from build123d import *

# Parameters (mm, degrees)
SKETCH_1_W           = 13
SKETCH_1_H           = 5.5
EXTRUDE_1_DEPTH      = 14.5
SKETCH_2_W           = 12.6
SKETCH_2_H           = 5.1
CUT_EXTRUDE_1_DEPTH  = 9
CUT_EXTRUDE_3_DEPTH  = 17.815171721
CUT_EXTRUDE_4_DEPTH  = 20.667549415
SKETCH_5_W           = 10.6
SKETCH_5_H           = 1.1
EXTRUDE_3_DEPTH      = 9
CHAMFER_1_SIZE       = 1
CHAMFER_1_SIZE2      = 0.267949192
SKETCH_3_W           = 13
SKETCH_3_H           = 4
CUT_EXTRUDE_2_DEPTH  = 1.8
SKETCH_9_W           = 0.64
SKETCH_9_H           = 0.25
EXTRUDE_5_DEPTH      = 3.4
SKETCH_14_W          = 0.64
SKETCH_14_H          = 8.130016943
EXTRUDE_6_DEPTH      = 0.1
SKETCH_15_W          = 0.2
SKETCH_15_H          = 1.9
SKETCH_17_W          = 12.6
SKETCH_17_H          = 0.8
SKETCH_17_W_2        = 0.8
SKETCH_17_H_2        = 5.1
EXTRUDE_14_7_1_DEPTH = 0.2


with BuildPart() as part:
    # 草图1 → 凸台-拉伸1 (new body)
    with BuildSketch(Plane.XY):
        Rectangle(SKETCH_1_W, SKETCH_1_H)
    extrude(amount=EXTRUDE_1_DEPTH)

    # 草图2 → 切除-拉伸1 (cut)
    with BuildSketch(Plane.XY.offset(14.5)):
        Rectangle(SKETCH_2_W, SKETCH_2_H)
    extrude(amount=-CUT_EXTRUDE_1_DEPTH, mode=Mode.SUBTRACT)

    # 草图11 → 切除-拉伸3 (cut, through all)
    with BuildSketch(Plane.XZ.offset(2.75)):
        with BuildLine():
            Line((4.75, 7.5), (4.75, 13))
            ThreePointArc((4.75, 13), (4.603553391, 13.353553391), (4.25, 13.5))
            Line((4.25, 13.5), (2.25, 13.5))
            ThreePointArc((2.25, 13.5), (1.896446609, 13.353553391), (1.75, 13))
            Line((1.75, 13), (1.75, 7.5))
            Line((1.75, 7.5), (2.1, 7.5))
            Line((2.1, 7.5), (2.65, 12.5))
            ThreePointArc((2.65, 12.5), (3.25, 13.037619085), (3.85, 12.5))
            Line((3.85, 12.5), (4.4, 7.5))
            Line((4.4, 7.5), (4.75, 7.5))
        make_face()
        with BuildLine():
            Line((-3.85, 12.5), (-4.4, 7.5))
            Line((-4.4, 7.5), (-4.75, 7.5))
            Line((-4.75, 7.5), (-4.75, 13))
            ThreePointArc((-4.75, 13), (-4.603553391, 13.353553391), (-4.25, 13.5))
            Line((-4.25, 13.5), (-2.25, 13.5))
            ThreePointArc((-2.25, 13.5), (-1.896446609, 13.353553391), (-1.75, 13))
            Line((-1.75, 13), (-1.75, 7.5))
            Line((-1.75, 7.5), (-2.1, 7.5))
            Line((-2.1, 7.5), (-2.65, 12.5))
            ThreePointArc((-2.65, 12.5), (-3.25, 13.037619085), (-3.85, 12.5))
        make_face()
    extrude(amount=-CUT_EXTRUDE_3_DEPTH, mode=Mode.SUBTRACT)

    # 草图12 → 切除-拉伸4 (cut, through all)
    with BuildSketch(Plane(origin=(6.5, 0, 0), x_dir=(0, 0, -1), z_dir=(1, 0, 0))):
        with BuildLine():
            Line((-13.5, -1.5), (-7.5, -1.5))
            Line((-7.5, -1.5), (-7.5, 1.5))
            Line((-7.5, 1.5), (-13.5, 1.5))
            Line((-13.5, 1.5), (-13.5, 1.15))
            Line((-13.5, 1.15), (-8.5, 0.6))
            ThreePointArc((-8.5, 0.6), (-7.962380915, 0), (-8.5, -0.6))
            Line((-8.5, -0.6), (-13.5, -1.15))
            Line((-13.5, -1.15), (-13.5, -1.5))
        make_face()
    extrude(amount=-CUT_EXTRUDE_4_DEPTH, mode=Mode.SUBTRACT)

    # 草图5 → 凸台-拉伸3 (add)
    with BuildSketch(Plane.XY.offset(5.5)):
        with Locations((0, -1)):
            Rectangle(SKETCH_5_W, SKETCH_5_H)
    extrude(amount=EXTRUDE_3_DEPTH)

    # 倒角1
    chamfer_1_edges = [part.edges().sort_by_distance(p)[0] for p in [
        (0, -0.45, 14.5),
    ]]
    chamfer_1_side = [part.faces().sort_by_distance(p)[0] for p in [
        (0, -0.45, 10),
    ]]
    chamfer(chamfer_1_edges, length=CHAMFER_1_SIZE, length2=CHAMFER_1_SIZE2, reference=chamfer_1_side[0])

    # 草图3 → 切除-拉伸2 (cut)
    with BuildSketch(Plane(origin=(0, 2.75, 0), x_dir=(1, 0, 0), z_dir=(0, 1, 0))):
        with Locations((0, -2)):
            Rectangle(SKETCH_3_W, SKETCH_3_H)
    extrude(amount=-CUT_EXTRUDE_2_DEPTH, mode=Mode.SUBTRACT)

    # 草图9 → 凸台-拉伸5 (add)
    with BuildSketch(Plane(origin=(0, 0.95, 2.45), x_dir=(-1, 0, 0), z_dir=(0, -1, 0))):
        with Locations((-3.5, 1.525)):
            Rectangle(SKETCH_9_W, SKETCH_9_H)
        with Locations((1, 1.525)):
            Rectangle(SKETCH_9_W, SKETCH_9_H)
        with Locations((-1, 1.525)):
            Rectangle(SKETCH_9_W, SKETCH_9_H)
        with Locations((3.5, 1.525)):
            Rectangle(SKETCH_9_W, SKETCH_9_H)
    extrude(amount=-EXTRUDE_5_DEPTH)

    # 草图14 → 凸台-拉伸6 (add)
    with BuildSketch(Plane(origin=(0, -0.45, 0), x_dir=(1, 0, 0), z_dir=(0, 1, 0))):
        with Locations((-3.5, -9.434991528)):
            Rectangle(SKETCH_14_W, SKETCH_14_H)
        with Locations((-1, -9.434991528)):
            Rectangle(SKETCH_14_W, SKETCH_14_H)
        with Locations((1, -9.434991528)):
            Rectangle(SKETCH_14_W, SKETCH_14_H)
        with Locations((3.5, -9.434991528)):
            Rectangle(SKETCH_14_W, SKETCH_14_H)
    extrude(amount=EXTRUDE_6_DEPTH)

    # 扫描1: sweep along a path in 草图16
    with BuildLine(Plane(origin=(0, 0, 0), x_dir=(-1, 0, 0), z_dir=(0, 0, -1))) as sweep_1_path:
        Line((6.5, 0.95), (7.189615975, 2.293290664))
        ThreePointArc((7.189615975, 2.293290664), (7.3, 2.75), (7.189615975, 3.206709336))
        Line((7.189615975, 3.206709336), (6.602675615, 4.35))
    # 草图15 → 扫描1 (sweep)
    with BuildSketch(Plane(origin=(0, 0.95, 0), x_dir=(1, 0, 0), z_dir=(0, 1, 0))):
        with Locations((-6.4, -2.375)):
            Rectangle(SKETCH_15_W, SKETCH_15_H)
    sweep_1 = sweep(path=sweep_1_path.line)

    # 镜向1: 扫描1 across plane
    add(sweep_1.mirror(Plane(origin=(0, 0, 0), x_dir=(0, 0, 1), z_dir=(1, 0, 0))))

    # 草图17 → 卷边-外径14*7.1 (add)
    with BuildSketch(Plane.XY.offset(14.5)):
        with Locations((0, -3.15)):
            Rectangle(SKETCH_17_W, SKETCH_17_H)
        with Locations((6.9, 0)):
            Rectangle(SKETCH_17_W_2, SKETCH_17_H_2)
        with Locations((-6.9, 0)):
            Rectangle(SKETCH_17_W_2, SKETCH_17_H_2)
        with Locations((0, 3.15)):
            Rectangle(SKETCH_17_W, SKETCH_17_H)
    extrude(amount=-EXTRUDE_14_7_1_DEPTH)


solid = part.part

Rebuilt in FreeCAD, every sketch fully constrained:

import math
import FreeCAD as App
import Part
import Sketcher

V = App.Vector
Q = App.Units.Quantity


def edges_at(feature, points):
    """Names of the edges that pass closest to the given points."""
    edges = feature.Shape.Edges
    near = lambda p: min(range(len(edges)), key=lambda i: edges[i].distToShape(Part.Vertex(*p))[0])
    return sorted({f"Edge{near(p) + 1}" for p in points})

doc = App.newDocument("Part")
body = doc.addObject("PartDesign::Body", "Body")

# Sketch on XY plane
sketch1 = body.newObject("Sketcher::SketchObject", "Sketch")
sketch1.AttachmentSupport = (doc.getObject("XY_Plane"), [""])
sketch1.MapMode = "FlatFace"
sketch1.addGeometry(Part.LineSegment(V(-6, 3, 0), V(-6, -3, 0)), False)
sketch1.addGeometry(Part.LineSegment(V(-6, -3, 0), V(6, -3, 0)), False)
sketch1.addGeometry(Part.LineSegment(V(6, -3, 0), V(6, 3, 0)), False)
sketch1.addGeometry(Part.LineSegment(V(6, 3, 0), V(-6, 3, 0)), False)
sketch1.addConstraint(Sketcher.Constraint("Coincident", 0, 2, 1, 1))
sketch1.addConstraint(Sketcher.Constraint("Coincident", 1, 2, 2, 1))
sketch1.addConstraint(Sketcher.Constraint("Coincident", 2, 2, 3, 1))
sketch1.addConstraint(Sketcher.Constraint("Coincident", 3, 2, 0, 1))
sketch1.addConstraint(Sketcher.Constraint("Vertical", 0))
sketch1.addConstraint(Sketcher.Constraint("Horizontal", 1))
sketch1.addConstraint(Sketcher.Constraint("Vertical", 2))
sketch1.addConstraint(Sketcher.Constraint("Horizontal", 3))
sketch1.addConstraint(Sketcher.Constraint("Symmetric", 0, 2, 2, 2, -1, 1))
sketch1.addConstraint(Sketcher.Constraint("DistanceX", 1, 1, 1, 2, Q("13 mm")))
sketch1.addConstraint(Sketcher.Constraint("DistanceY", 0, 2, 0, 1, Q("5.5 mm")))
pad1 = body.newObject("PartDesign::Pad", "Pad")
pad1.Profile = sketch1
pad1.Length = 14.5

# Sketch on XY plane
sketch2 = body.newObject("Sketcher::SketchObject", "Sketch001")
sketch2.AttachmentSupport = (doc.getObject("XY_Plane"), [""])
sketch2.MapMode = "FlatFace"
sketch2.AttachmentOffset = App.Placement(V(0, 0, 14.5), App.Rotation())
sketch2.addGeometry(Part.LineSegment(V(-6, 3, 0), V(-6, -3, 0)), False)
sketch2.addGeometry(Part.LineSegment(V(-6, -3, 0), V(6, -3, 0)), False)
sketch2.addGeometry(Part.LineSegment(V(6, -3, 0), V(6, 3, 0)), False)
sketch2.addGeometry(Part.LineSegment(V(6, 3, 0), V(-6, 3, 0)), False)
sketch2.addConstraint(Sketcher.Constraint("Coincident", 0, 2, 1, 1))
sketch2.addConstraint(Sketcher.Constraint("Coincident", 1, 2, 2, 1))
sketch2.addConstraint(Sketcher.Constraint("Coincident", 2, 2, 3, 1))
sketch2.addConstraint(Sketcher.Constraint("Coincident", 3, 2, 0, 1))
sketch2.addConstraint(Sketcher.Constraint("Vertical", 0))
sketch2.addConstraint(Sketcher.Constraint("Horizontal", 1))
sketch2.addConstraint(Sketcher.Constraint("Vertical", 2))
sketch2.addConstraint(Sketcher.Constraint("Horizontal", 3))
sketch2.addConstraint(Sketcher.Constraint("Symmetric", 0, 2, 2, 2, -1, 1))
sketch2.addConstraint(Sketcher.Constraint("DistanceX", 1, 1, 1, 2, Q("12.6 mm")))
sketch2.addConstraint(Sketcher.Constraint("DistanceY", 0, 2, 0, 1, Q("5.1 mm")))
pocket1 = body.newObject("PartDesign::Pocket", "Pocket")
pocket1.Profile = sketch2
pocket1.Length = 9

# Sketch on XZ plane
sketch3 = body.newObject("Sketcher::SketchObject", "Sketch002")
sketch3.AttachmentSupport = (doc.getObject("XZ_Plane"), [""])
sketch3.MapMode = "FlatFace"
sketch3.AttachmentOffset = App.Placement(V(0, 0, 2.75), App.Rotation())
sketch3.addGeometry(Part.LineSegment(V(4.75, 7.5, 0), V(4.75, 13, 0)), False)
sketch3.addGeometry(Part.ArcOfCircle(Part.Circle(V(4.25, 13, 0), V(0, 0, 1), 0.5), math.radians(0), math.radians(90)), False)
sketch3.addGeometry(Part.LineSegment(V(4.25, 13.5, 0), V(2.25, 13.5, 0)), False)
sketch3.addGeometry(Part.ArcOfCircle(Part.Circle(V(2.25, 13, 0), V(0, 0, 1), 0.5), math.radians(90), math.radians(180)), False)
sketch3.addGeometry(Part.LineSegment(V(1.75, 13, 0), V(1.75, 7.5, 0)), False)
sketch3.addGeometry(Part.LineSegment(V(1.75, 7.5, 0), V(2.1, 7.5, 0)), False)
sketch3.addGeometry(Part.LineSegment(V(2.1, 7.5, 0), V(2.65, 12.5, 0)), False)
sketch3.addGeometry(Part.ArcOfCircle(Part.Circle(V(3.25, 12.43, 0), V(0, 0, 1), 0.6), math.radians(6), math.radians(174)), False)
sketch3.addGeometry(Part.LineSegment(V(3.85, 12.5, 0), V(4.4, 7.5, 0)), False)
sketch3.addGeometry(Part.LineSegment(V(4.4, 7.5, 0), V(4.75, 7.5, 0)), False)
sketch3.addGeometry(Part.LineSegment(V(-4.4, 7.5, 0), V(-3.85, 12.5, 0)), False)
sketch3.addGeometry(Part.ArcOfCircle(Part.Circle(V(-3.25, 12.43, 0), V(0, 0, 1), 0.6), math.radians(6), math.radians(174)), False)
sketch3.addGeometry(Part.LineSegment(V(-2.65, 12.5, 0), V(-2.1, 7.5, 0)), False)
sketch3.addGeometry(Part.LineSegment(V(-2.1, 7.5, 0), V(-1.75, 7.5, 0)), False)
sketch3.addGeometry(Part.LineSegment(V(-1.75, 7.5, 0), V(-1.75, 13, 0)), False)
sketch3.addGeometry(Part.ArcOfCircle(Part.Circle(V(-2.25, 13, 0), V(0, 0, 1), 0.5), math.radians(0), math.radians(90)), False)
sketch3.addGeometry(Part.LineSegment(V(-2.25, 13.5, 0), V(-4.25, 13.5, 0)), False)
sketch3.addGeometry(Part.ArcOfCircle(Part.Circle(V(-4.25, 13, 0), V(0, 0, 1), 0.5), math.radians(90), math.radians(180)), False)
sketch3.addGeometry(Part.LineSegment(V(-4.75, 13, 0), V(-4.75, 7.5, 0)), False)
sketch3.addGeometry(Part.LineSegment(V(-4.75, 7.5, 0), V(-4.4, 7.5, 0)), False)
sketch3.addConstraint(Sketcher.Constraint("Tangent", 0, 2, 1, 1))
sketch3.addConstraint(Sketcher.Constraint("Tangent", 1, 2, 2, 1))
sketch3.addConstraint(Sketcher.Constraint("Tangent", 2, 2, 3, 1))
sketch3.addConstraint(Sketcher.Constraint("Tangent", 3, 2, 4, 1))
sketch3.addConstraint(Sketcher.Constraint("Coincident", 4, 2, 5, 1))
sketch3.addConstraint(Sketcher.Constraint("Coincident", 5, 2, 6, 1))
sketch3.addConstraint(Sketcher.Constraint("Tangent", 6, 2, 7, 2))
sketch3.addConstraint(Sketcher.Constraint("Tangent", 7, 1, 8, 1))
sketch3.addConstraint(Sketcher.Constraint("Coincident", 8, 2, 9, 1))
sketch3.addConstraint(Sketcher.Constraint("Coincident", 9, 2, 0, 1))
sketch3.addConstraint(Sketcher.Constraint("Tangent", 10, 2, 11, 2))
sketch3.addConstraint(Sketcher.Constraint("Tangent", 11, 1, 12, 1))
sketch3.addConstraint(Sketcher.Constraint("Coincident", 12, 2, 13, 1))
sketch3.addConstraint(Sketcher.Constraint("Coincident", 13, 2, 14, 1))
sketch3.addConstraint(Sketcher.Constraint("Tangent", 14, 2, 15, 1))
sketch3.addConstraint(Sketcher.Constraint("Tangent", 15, 2, 16, 1))
sketch3.addConstraint(Sketcher.Constraint("Tangent", 16, 2, 17, 1))
sketch3.addConstraint(Sketcher.Constraint("Tangent", 17, 2, 18, 1))
sketch3.addConstraint(Sketcher.Constraint("Coincident", 18, 2, 19, 1))
sketch3.addConstraint(Sketcher.Constraint("Coincident", 19, 2, 10, 1))
sketch3.addConstraint(Sketcher.Constraint("Vertical", 0))
sketch3.addConstraint(Sketcher.Constraint("Horizontal", 2))
sketch3.addConstraint(Sketcher.Constraint("Vertical", 4))
sketch3.addConstraint(Sketcher.Constraint("Horizontal", 5))
sketch3.addConstraint(Sketcher.Constraint("Horizontal", 9))
sketch3.addConstraint(Sketcher.Constraint("Horizontal", 13))
sketch3.addConstraint(Sketcher.Constraint("Vertical", 14))
sketch3.addConstraint(Sketcher.Constraint("Horizontal", 16))
sketch3.addConstraint(Sketcher.Constraint("Vertical", 18))
sketch3.addConstraint(Sketcher.Constraint("Horizontal", 19))
sketch3.addConstraint(Sketcher.Constraint("Equal", 1, 3))
sketch3.addConstraint(Sketcher.Constraint("Equal", 7, 11))
sketch3.addConstraint(Sketcher.Constraint("Equal", 3, 15))
sketch3.addConstraint(Sketcher.Constraint("Equal", 15, 17))
sketch3.addConstraint(Sketcher.Constraint("Symmetric", 7, 3, 11, 3, -2))
sketch3.addConstraint(Sketcher.Constraint("Symmetric", 3, 3, 15, 3, -2))
sketch3.addConstraint(Sketcher.Constraint("Symmetric", 5, 2, 12, 2, -2))
sketch3.addConstraint(Sketcher.Constraint("Symmetric", 9, 2, 18, 2, -2))
sketch3.addConstraint(Sketcher.Constraint("Parallel", 6, 10))
sketch3.addConstraint(Sketcher.Constraint("Parallel", 8, 12))
sketch3.addConstraint(Sketcher.Constraint("Horizontal", 5, 2, 8, 2))
sketch3.addConstraint(Sketcher.Constraint("Equal", 5, 9))
sketch3.addConstraint(Sketcher.Constraint("Radius", 1, Q("0.5 mm")))
sketch3.addConstraint(Sketcher.Constraint("DistanceX", 2, 2, 2, 1, Q("2 mm")))
sketch3.addConstraint(Sketcher.Constraint("DistanceY", 0, 1, 0, 2, Q("5.5 mm")))
sketch3.addConstraint(Sketcher.Constraint("DistanceY", -1, 1, 1, 3, Q("13 mm")))
sketch3.addConstraint(Sketcher.Constraint("DistanceX", 15, 3, 0, 2, Q("7 mm")))
sketch3.addConstraint(Sketcher.Constraint("DistanceY", 6, 2, 2, 2, Q("1 mm")))
sketch3.addConstraint(Sketcher.Constraint("DistanceX", 5, 1, 5, 2, Q("0.35 mm")))
sketch3.addConstraint(Sketcher.Constraint("DistanceX", 6, 2, 7, 3, Q("0.6 mm")))
pocket2 = body.newObject("PartDesign::Pocket", "Pocket001")
pocket2.Profile = sketch3
pocket2.Type = "ThroughAll"

# Sketch on YZ plane
sketch4 = body.newObject("Sketcher::SketchObject", "Sketch003")
sketch4.AttachmentSupport = (doc.getObject("YZ_Plane"), [""])
sketch4.MapMode = "FlatFace"
sketch4.AttachmentOffset = App.Placement(V(0, 0, 6.5), App.Rotation())
sketch4.addGeometry(Part.LineSegment(V(-1.5, 13.5, 0), V(-1.5, 7.5, 0)), False)
sketch4.addGeometry(Part.LineSegment(V(-1.5, 7.5, 0), V(1.5, 7.5, 0)), False)
sketch4.addGeometry(Part.LineSegment(V(1.5, 7.5, 0), V(1.5, 13.5, 0)), False)
sketch4.addGeometry(Part.LineSegment(V(1.5, 13.5, 0), V(1.15, 13.5, 0)), False)
sketch4.addGeometry(Part.LineSegment(V(1.15, 13.5, 0), V(0.6, 8.5, 0)), False)
sketch4.addGeometry(Part.ArcOfCircle(Part.Circle(V(0, 8.57, 0), V(0, 0, 1), 0.6), math.radians(-174), math.radians(-6)), False)
sketch4.addGeometry(Part.LineSegment(V(-0.6, 8.5, 0), V(-1.15, 13.5, 0)), False)
sketch4.addGeometry(Part.LineSegment(V(-1.15, 13.5, 0), V(-1.5, 13.5, 0)), False)
sketch4.addConstraint(Sketcher.Constraint("Coincident", 0, 2, 1, 1))
sketch4.addConstraint(Sketcher.Constraint("Coincident", 1, 2, 2, 1))
sketch4.addConstraint(Sketcher.Constraint("Coincident", 2, 2, 3, 1))
sketch4.addConstraint(Sketcher.Constraint("Coincident", 3, 2, 4, 1))
sketch4.addConstraint(Sketcher.Constraint("Tangent", 4, 2, 5, 2))
sketch4.addConstraint(Sketcher.Constraint("Tangent", 5, 1, 6, 1))
sketch4.addConstraint(Sketcher.Constraint("Coincident", 6, 2, 7, 1))
sketch4.addConstraint(Sketcher.Constraint("Coincident", 7, 2, 0, 1))
sketch4.addConstraint(Sketcher.Constraint("Vertical", 0))
sketch4.addConstraint(Sketcher.Constraint("Horizontal", 1))
sketch4.addConstraint(Sketcher.Constraint("Vertical", 2))
sketch4.addConstraint(Sketcher.Constraint("Horizontal", 3))
sketch4.addConstraint(Sketcher.Constraint("Horizontal", 7))
sketch4.addConstraint(Sketcher.Constraint("Symmetric", 4, 2, 5, 1, -2))
sketch4.addConstraint(Sketcher.Constraint("Symmetric", 2, 2, 7, 2, -2))
sketch4.addConstraint(Sketcher.Constraint("DistanceX", 1, 1, 1, 2, Q("3 mm")))
sketch4.addConstraint(Sketcher.Constraint("DistanceY", 0, 2, 0, 1, Q("6 mm")))
sketch4.addConstraint(Sketcher.Constraint("DistanceY", 1, 2, 4, 2, Q("1 mm")))
sketch4.addConstraint(Sketcher.Constraint("DistanceX", 3, 2, 3, 1, Q("0.35 mm")))
sketch4.addConstraint(Sketcher.Constraint("DistanceY", -1, 1, 0, 2, Q("7.5 mm")))
sketch4.addConstraint(Sketcher.Constraint("DistanceX", -1, 1, 4, 2, Q("0.6 mm")))
pocket3 = body.newObject("PartDesign::Pocket", "Pocket002")
pocket3.Profile = sketch4
pocket3.Type = "ThroughAll"

# Sketch on XY plane
sketch5 = body.newObject("Sketcher::SketchObject", "Sketch004")
sketch5.AttachmentSupport = (doc.getObject("XY_Plane"), [""])
sketch5.MapMode = "FlatFace"
sketch5.AttachmentOffset = App.Placement(V(0, 0, 5.5), App.Rotation())
sketch5.addGeometry(Part.LineSegment(V(-5.3, -0.5, 0), V(-5.3, -1.6, 0)), False)
sketch5.addGeometry(Part.LineSegment(V(-5.3, -1.6, 0), V(5.3, -1.6, 0)), False)
sketch5.addGeometry(Part.LineSegment(V(5.3, -1.6, 0), V(5.3, -0.5, 0)), False)
sketch5.addGeometry(Part.LineSegment(V(5.3, -0.5, 0), V(-5.3, -0.5, 0)), False)
sketch5.addConstraint(Sketcher.Constraint("Coincident", 0, 2, 1, 1))
sketch5.addConstraint(Sketcher.Constraint("Coincident", 1, 2, 2, 1))
sketch5.addConstraint(Sketcher.Constraint("Coincident", 2, 2, 3, 1))
sketch5.addConstraint(Sketcher.Constraint("Coincident", 3, 2, 0, 1))
sketch5.addConstraint(Sketcher.Constraint("Vertical", 0))
sketch5.addConstraint(Sketcher.Constraint("Horizontal", 1))
sketch5.addConstraint(Sketcher.Constraint("Vertical", 2))
sketch5.addConstraint(Sketcher.Constraint("Horizontal", 3))
sketch5.addConstraint(Sketcher.Constraint("DistanceX", 1, 1, 1, 2, Q("10.6 mm")))
sketch5.addConstraint(Sketcher.Constraint("DistanceY", 0, 2, 0, 1, Q("1.1 mm")))
sketch5.addConstraint(Sketcher.Constraint("DistanceX", 0, 2, -1, 1, Q("5.3 mm")))
sketch5.addConstraint(Sketcher.Constraint("DistanceY", 0, 2, -1, 1, Q("1.55 mm")))
pad2 = body.newObject("PartDesign::Pad", "Pad001")
pad2.Profile = sketch5
pad2.Length = 9
doc.recompute()

chamfer = body.newObject("PartDesign::Chamfer", "Chamfer")
chamfer.Base = (pad2, edges_at(pad2, [(0, -0.45, 14.5)]))
chamfer.ChamferType = "Two distances"
chamfer.Size = 1
chamfer.Size2 = 0.267949

# Sketch on XZ plane
sketch6 = body.newObject("Sketcher::SketchObject", "Sketch005")
sketch6.AttachmentSupport = (doc.getObject("XZ_Plane"), [""])
sketch6.MapMode = "FlatFace"
sketch6.AttachmentOffset = App.Placement(V(0, 0, -2.75), App.Rotation())
sketch6.addGeometry(Part.LineSegment(V(-6.5, 0, 0), V(-6.5, 4, 0)), False)
sketch6.addGeometry(Part.LineSegment(V(-6.5, 4, 0), V(6.5, 4, 0)), False)
sketch6.addGeometry(Part.LineSegment(V(6.5, 4, 0), V(6.5, 0, 0)), False)
sketch6.addGeometry(Part.LineSegment(V(6.5, 0, 0), V(-6.5, 0, 0)), False)
sketch6.addConstraint(Sketcher.Constraint("Coincident", 0, 2, 1, 1))
sketch6.addConstraint(Sketcher.Constraint("Coincident", 1, 2, 2, 1))
sketch6.addConstraint(Sketcher.Constraint("Coincident", 2, 2, 3, 1))
sketch6.addConstraint(Sketcher.Constraint("Coincident", 3, 2, 0, 1))
sketch6.addConstraint(Sketcher.Constraint("Vertical", 0))
sketch6.addConstraint(Sketcher.Constraint("Horizontal", 1))
sketch6.addConstraint(Sketcher.Constraint("Vertical", 2))
sketch6.addConstraint(Sketcher.Constraint("Horizontal", 3))
sketch6.addConstraint(Sketcher.Constraint("Symmetric", 2, 2, 3, 2, -1, 1))
sketch6.addConstraint(Sketcher.Constraint("DistanceX", 1, 1, 1, 2, Q("13 mm")))
sketch6.addConstraint(Sketcher.Constraint("DistanceY", 0, 1, 0, 2, Q("4 mm")))
pocket4 = body.newObject("PartDesign::Pocket", "Pocket003")
pocket4.Profile = sketch6
pocket4.Length = 1.8
pocket4.Reversed = True

# Sketch on XZ plane
sketch7 = body.newObject("Sketcher::SketchObject", "Sketch006")
sketch7.AttachmentSupport = (doc.getObject("XZ_Plane"), [""])
sketch7.MapMode = "FlatFace"
sketch7.AttachmentOffset = App.Placement(V(0, 0, -0.95), App.Rotation())
sketch7.addGeometry(Part.LineSegment(V(3.82, 0.8, 0), V(3.82, 1.05, 0)), False)
sketch7.addGeometry(Part.LineSegment(V(3.82, 1.05, 0), V(3.18, 1.05, 0)), False)
sketch7.addGeometry(Part.LineSegment(V(3.18, 1.05, 0), V(3.18, 0.8, 0)), False)
sketch7.addGeometry(Part.LineSegment(V(3.18, 0.8, 0), V(3.82, 0.8, 0)), False)
sketch7.addGeometry(Part.LineSegment(V(-0.68, 0.8, 0), V(-0.68, 1.05, 0)), False)
sketch7.addGeometry(Part.LineSegment(V(-0.68, 1.05, 0), V(-1.32, 1.05, 0)), False)
sketch7.addGeometry(Part.LineSegment(V(-1.32, 1.05, 0), V(-1.32, 0.8, 0)), False)
sketch7.addGeometry(Part.LineSegment(V(-1.32, 0.8, 0), V(-0.68, 0.8, 0)), False)
sketch7.addGeometry(Part.LineSegment(V(1.32, 0.8, 0), V(1.32, 1.05, 0)), False)
sketch7.addGeometry(Part.LineSegment(V(1.32, 1.05, 0), V(0.68, 1.05, 0)), False)
sketch7.addGeometry(Part.LineSegment(V(0.68, 1.05, 0), V(0.68, 0.8, 0)), False)
sketch7.addGeometry(Part.LineSegment(V(0.68, 0.8, 0), V(1.32, 0.8, 0)), False)
sketch7.addGeometry(Part.LineSegment(V(-3.18, 0.8, 0), V(-3.18, 1.05, 0)), False)
sketch7.addGeometry(Part.LineSegment(V(-3.18, 1.05, 0), V(-3.82, 1.05, 0)), False)
sketch7.addGeometry(Part.LineSegment(V(-3.82, 1.05, 0), V(-3.82, 0.8, 0)), False)
sketch7.addGeometry(Part.LineSegment(V(-3.82, 0.8, 0), V(-3.18, 0.8, 0)), False)
sketch7.addConstraint(Sketcher.Constraint("Coincident", 0, 2, 1, 1))
sketch7.addConstraint(Sketcher.Constraint("Coincident", 1, 2, 2, 1))
sketch7.addConstraint(Sketcher.Constraint("Coincident", 2, 2, 3, 1))
sketch7.addConstraint(Sketcher.Constraint("Coincident", 3, 2, 0, 1))
sketch7.addConstraint(Sketcher.Constraint("Coincident", 4, 2, 5, 1))
sketch7.addConstraint(Sketcher.Constraint("Coincident", 5, 2, 6, 1))
sketch7.addConstraint(Sketcher.Constraint("Coincident", 6, 2, 7, 1))
sketch7.addConstraint(Sketcher.Constraint("Coincident", 7, 2, 4, 1))
sketch7.addConstraint(Sketcher.Constraint("Coincident", 8, 2, 9, 1))
sketch7.addConstraint(Sketcher.Constraint("Coincident", 9, 2, 10, 1))
sketch7.addConstraint(Sketcher.Constraint("Coincident", 10, 2, 11, 1))
sketch7.addConstraint(Sketcher.Constraint("Coincident", 11, 2, 8, 1))
sketch7.addConstraint(Sketcher.Constraint("Coincident", 12, 2, 13, 1))
sketch7.addConstraint(Sketcher.Constraint("Coincident", 13, 2, 14, 1))
sketch7.addConstraint(Sketcher.Constraint("Coincident", 14, 2, 15, 1))
sketch7.addConstraint(Sketcher.Constraint("Coincident", 15, 2, 12, 1))
sketch7.addConstraint(Sketcher.Constraint("Vertical", 0))
sketch7.addConstraint(Sketcher.Constraint("Horizontal", 1))
sketch7.addConstraint(Sketcher.Constraint("Vertical", 2))
sketch7.addConstraint(Sketcher.Constraint("Horizontal", 3))
sketch7.addConstraint(Sketcher.Constraint("Vertical", 4))
sketch7.addConstraint(Sketcher.Constraint("Horizontal", 5))
sketch7.addConstraint(Sketcher.Constraint("Vertical", 6))
sketch7.addConstraint(Sketcher.Constraint("Horizontal", 7))
sketch7.addConstraint(Sketcher.Constraint("Vertical", 8))
sketch7.addConstraint(Sketcher.Constraint("Horizontal", 9))
sketch7.addConstraint(Sketcher.Constraint("Vertical", 10))
sketch7.addConstraint(Sketcher.Constraint("Horizontal", 11))
sketch7.addConstraint(Sketcher.Constraint("Vertical", 12))
sketch7.addConstraint(Sketcher.Constraint("Horizontal", 13))
sketch7.addConstraint(Sketcher.Constraint("Vertical", 14))
sketch7.addConstraint(Sketcher.Constraint("Horizontal", 15))
sketch7.addConstraint(Sketcher.Constraint("Symmetric", 5, 2, 8, 2, -2))
sketch7.addConstraint(Sketcher.Constraint("Symmetric", 7, 2, 10, 2, -2))
sketch7.addConstraint(Sketcher.Constraint("Symmetric", 1, 2, 12, 2, -2))
sketch7.addConstraint(Sketcher.Constraint("Symmetric", 3, 2, 14, 2, -2))
sketch7.addConstraint(Sketcher.Constraint("Horizontal", 1, 2, 4, 2))
sketch7.addConstraint(Sketcher.Constraint("Horizontal", 3, 2, 6, 2))
sketch7.addConstraint(Sketcher.Constraint("Equal", 3, 5))
sketch7.addConstraint(Sketcher.Constraint("DistanceX", 4, 2, 8, 2, Q("2 mm")))
sketch7.addConstraint(Sketcher.Constraint("DistanceX", 1, 2, 1, 1, Q("0.64 mm")))
sketch7.addConstraint(Sketcher.Constraint("DistanceY", 0, 1, 0, 2, Q("0.25 mm")))
sketch7.addConstraint(Sketcher.Constraint("DistanceY", -1, 1, 2, 2, Q("0.8 mm")))
sketch7.addConstraint(Sketcher.Constraint("DistanceX", 4, 2, 0, 2, Q("4.5 mm")))
pad3 = body.newObject("PartDesign::Pad", "Pad002")
pad3.Profile = sketch7
pad3.Length = 3.4
pad3.Reversed = True

# Sketch on XZ plane
sketch8 = body.newObject("Sketcher::SketchObject", "Sketch007")
sketch8.AttachmentSupport = (doc.getObject("XZ_Plane"), [""])
sketch8.MapMode = "FlatFace"
sketch8.AttachmentOffset = App.Placement(V(0, 0, 0.45), App.Rotation())
sketch8.addGeometry(Part.LineSegment(V(-3.8, 5.4, 0), V(-3.8, 13.5, 0)), False)
sketch8.addGeometry(Part.LineSegment(V(-3.8, 13.5, 0), V(-3.2, 13.5, 0)), False)
sketch8.addGeometry(Part.LineSegment(V(-3.2, 13.5, 0), V(-3.2, 5.4, 0)), False)
sketch8.addGeometry(Part.LineSegment(V(-3.2, 5.4, 0), V(-3.8, 5.4, 0)), False)
sketch8.addGeometry(Part.LineSegment(V(-1.3, 5.4, 0), V(-1.3, 13.5, 0)), False)
sketch8.addGeometry(Part.LineSegment(V(-1.3, 13.5, 0), V(-0.7, 13.5, 0)), False)
sketch8.addGeometry(Part.LineSegment(V(-0.7, 13.5, 0), V(-0.7, 5.4, 0)), False)
sketch8.addGeometry(Part.LineSegment(V(-0.7, 5.4, 0), V(-1.3, 5.4, 0)), False)
sketch8.addGeometry(Part.LineSegment(V(0.7, 5.4, 0), V(0.7, 13.5, 0)), False)
sketch8.addGeometry(Part.LineSegment(V(0.7, 13.5, 0), V(1.3, 13.5, 0)), False)
sketch8.addGeometry(Part.LineSegment(V(1.3, 13.5, 0), V(1.3, 5.4, 0)), False)
sketch8.addGeometry(Part.LineSegment(V(1.3, 5.4, 0), V(0.7, 5.4, 0)), False)
sketch8.addGeometry(Part.LineSegment(V(3.2, 5.4, 0), V(3.2, 13.5, 0)), False)
sketch8.addGeometry(Part.LineSegment(V(3.2, 13.5, 0), V(3.8, 13.5, 0)), False)
sketch8.addGeometry(Part.LineSegment(V(3.8, 13.5, 0), V(3.8, 5.4, 0)), False)
sketch8.addGeometry(Part.LineSegment(V(3.8, 5.4, 0), V(3.2, 5.4, 0)), False)
sketch8.addConstraint(Sketcher.Constraint("Coincident", 0, 2, 1, 1))
sketch8.addConstraint(Sketcher.Constraint("Coincident", 1, 2, 2, 1))
sketch8.addConstraint(Sketcher.Constraint("Coincident", 2, 2, 3, 1))
sketch8.addConstraint(Sketcher.Constraint("Coincident", 3, 2, 0, 1))
sketch8.addConstraint(Sketcher.Constraint("Coincident", 4, 2, 5, 1))
sketch8.addConstraint(Sketcher.Constraint("Coincident", 5, 2, 6, 1))
sketch8.addConstraint(Sketcher.Constraint("Coincident", 6, 2, 7, 1))
sketch8.addConstraint(Sketcher.Constraint("Coincident", 7, 2, 4, 1))
sketch8.addConstraint(Sketcher.Constraint("Coincident", 8, 2, 9, 1))
sketch8.addConstraint(Sketcher.Constraint("Coincident", 9, 2, 10, 1))
sketch8.addConstraint(Sketcher.Constraint("Coincident", 10, 2, 11, 1))
sketch8.addConstraint(Sketcher.Constraint("Coincident", 11, 2, 8, 1))
sketch8.addConstraint(Sketcher.Constraint("Coincident", 12, 2, 13, 1))
sketch8.addConstraint(Sketcher.Constraint("Coincident", 13, 2, 14, 1))
sketch8.addConstraint(Sketcher.Constraint("Coincident", 14, 2, 15, 1))
sketch8.addConstraint(Sketcher.Constraint("Coincident", 15, 2, 12, 1))
sketch8.addConstraint(Sketcher.Constraint("Vertical", 0))
sketch8.addConstraint(Sketcher.Constraint("Horizontal", 1))
sketch8.addConstraint(Sketcher.Constraint("Vertical", 2))
sketch8.addConstraint(Sketcher.Constraint("Horizontal", 3))
sketch8.addConstraint(Sketcher.Constraint("Vertical", 4))
sketch8.addConstraint(Sketcher.Constraint("Horizontal", 5))
sketch8.addConstraint(Sketcher.Constraint("Vertical", 6))
sketch8.addConstraint(Sketcher.Constraint("Horizontal", 7))
sketch8.addConstraint(Sketcher.Constraint("Vertical", 8))
sketch8.addConstraint(Sketcher.Constraint("Horizontal", 9))
sketch8.addConstraint(Sketcher.Constraint("Vertical", 10))
sketch8.addConstraint(Sketcher.Constraint("Horizontal", 11))
sketch8.addConstraint(Sketcher.Constraint("Vertical", 12))
sketch8.addConstraint(Sketcher.Constraint("Horizontal", 13))
sketch8.addConstraint(Sketcher.Constraint("Vertical", 14))
sketch8.addConstraint(Sketcher.Constraint("Horizontal", 15))
sketch8.addConstraint(Sketcher.Constraint("Symmetric", 5, 2, 8, 2, -2))
sketch8.addConstraint(Sketcher.Constraint("Symmetric", 7, 2, 10, 2, -2))
sketch8.addConstraint(Sketcher.Constraint("Symmetric", 1, 2, 12, 2, -2))
sketch8.addConstraint(Sketcher.Constraint("Symmetric", 3, 2, 14, 2, -2))
sketch8.addConstraint(Sketcher.Constraint("Horizontal", 1, 2, 4, 2))
sketch8.addConstraint(Sketcher.Constraint("Horizontal", 3, 2, 6, 2))
sketch8.addConstraint(Sketcher.Constraint("Equal", 3, 5))
sketch8.addConstraint(Sketcher.Constraint("DistanceX", 4, 2, 8, 2, Q("2 mm")))
sketch8.addConstraint(Sketcher.Constraint("DistanceX", 2, 2, 14, 2, Q("7 mm")))
sketch8.addConstraint(Sketcher.Constraint("DistanceX", 1, 1, 1, 2, Q("0.64 mm")))
sketch8.addConstraint(Sketcher.Constraint("DistanceY", -1, 1, 0, 2, Q("13.5 mm")))
sketch8.addConstraint(Sketcher.Constraint("DistanceY", 0, 1, 0, 2, Q("8.130017 mm")))
pad4 = body.newObject("PartDesign::Pad", "Pad003")
pad4.Profile = sketch8
pad4.Length = 0.1
pad4.Reversed = True

# Sketch on XZ plane
sketch9 = body.newObject("Sketcher::SketchObject", "Sketch008")
sketch9.AttachmentSupport = (doc.getObject("XZ_Plane"), [""])
sketch9.MapMode = "FlatFace"
sketch9.AttachmentOffset = App.Placement(V(0, 0, -0.95), App.Rotation())
sketch9.addGeometry(Part.LineSegment(V(-6.5, 1.43, 0), V(-6.5, 3.33, 0)), False)
sketch9.addGeometry(Part.LineSegment(V(-6.5, 3.33, 0), V(-6.3, 3.33, 0)), False)
sketch9.addGeometry(Part.LineSegment(V(-6.3, 3.33, 0), V(-6.3, 1.43, 0)), False)
sketch9.addGeometry(Part.LineSegment(V(-6.3, 1.43, 0), V(-6.5, 1.43, 0)), False)
sketch9.addConstraint(Sketcher.Constraint("Coincident", 0, 2, 1, 1))
sketch9.addConstraint(Sketcher.Constraint("Coincident", 1, 2, 2, 1))
sketch9.addConstraint(Sketcher.Constraint("Coincident", 2, 2, 3, 1))
sketch9.addConstraint(Sketcher.Constraint("Coincident", 3, 2, 0, 1))
sketch9.addConstraint(Sketcher.Constraint("Vertical", 0))
sketch9.addConstraint(Sketcher.Constraint("Horizontal", 1))
sketch9.addConstraint(Sketcher.Constraint("Vertical", 2))
sketch9.addConstraint(Sketcher.Constraint("Horizontal", 3))
sketch9.addConstraint(Sketcher.Constraint("DistanceX", 1, 1, 1, 2, Q("0.2 mm")))
sketch9.addConstraint(Sketcher.Constraint("DistanceY", 0, 1, 0, 2, Q("1.9 mm")))
sketch9.addConstraint(Sketcher.Constraint("DistanceX", 0, 2, -1, 1, Q("6.5 mm")))
sketch9.addConstraint(Sketcher.Constraint("DistanceY", -1, 1, 0, 2, Q("3.325 mm")))

# Sketch on XY plane
sketch10 = body.newObject("Sketcher::SketchObject", "Sketch009")
sketch10.AttachmentSupport = (doc.getObject("XY_Plane"), [""])
sketch10.MapMode = "FlatFace"
sketch10.addGeometry(Part.LineSegment(V(-6.5, 0.9, 0), V(-7.2, 2.3, 0)), False)
sketch10.addGeometry(Part.ArcOfCircle(Part.Circle(V(-6.3, 2.8, 0), V(0, 0, 1), 1), math.radians(153), math.radians(207)), False)
sketch10.addGeometry(Part.LineSegment(V(-7.2, 3.2, 0), V(-6.6, 4.3, 0)), False)
sketch10.addConstraint(Sketcher.Constraint("Tangent", 0, 2, 1, 2))
sketch10.addConstraint(Sketcher.Constraint("Tangent", 1, 1, 2, 1))
sketch10.addConstraint(Sketcher.Constraint("Vertical", 0, 2, 1, 1))
sketch10.addConstraint(Sketcher.Constraint("Radius", 1, Q("1 mm")))
sketch10.addConstraint(Sketcher.Constraint("DistanceX", 1, 3, -1, 1, Q("6.3 mm")))
sketch10.addConstraint(Sketcher.Constraint("DistanceX", 0, 1, -1, 1, Q("6.5 mm")))
sketch10.addConstraint(Sketcher.Constraint("DistanceY", 0, 1, 1, 3, Q("1.8 mm")))
sketch10.addConstraint(Sketcher.Constraint("DistanceY", 1, 3, 2, 2, Q("1.6 mm")))
sketch10.addConstraint(Sketcher.Constraint("DistanceY", -1, 1, 1, 3, Q("2.75 mm")))
doc.recompute()

additivepipe = body.newObject("PartDesign::AdditivePipe", "AdditivePipe")
additivepipe.Profile = sketch9
additivepipe.Spine = (sketch10, ["Edge1", "Edge2", "Edge3"])
doc.recompute()

mirrored = body.newObject("PartDesign::Mirrored", "Mirrored")
mirrored.Originals = [additivepipe]
mirrored.MirrorPlane = (doc.getObject("YZ_Plane"), [""])
body.Tip = mirrored

# Sketch on XY plane
sketch11 = body.newObject("Sketcher::SketchObject", "Sketch010")
sketch11.AttachmentSupport = (doc.getObject("XY_Plane"), [""])
sketch11.MapMode = "FlatFace"
sketch11.AttachmentOffset = App.Placement(V(0, 0, 14.5), App.Rotation())
sketch11.addGeometry(Part.LineSegment(V(-6.3, -2.8, 0), V(-6.3, -3.5, 0)), False)
sketch11.addGeometry(Part.LineSegment(V(-6.3, -3.5, 0), V(6.3, -3.5, 0)), False)
sketch11.addGeometry(Part.LineSegment(V(6.3, -3.5, 0), V(6.3, -2.8, 0)), False)
sketch11.addGeometry(Part.LineSegment(V(6.3, -2.8, 0), V(-6.3, -2.8, 0)), False)
sketch11.addGeometry(Part.LineSegment(V(6.5, 2.5, 0), V(6.5, -2.5, 0)), False)
sketch11.addGeometry(Part.LineSegment(V(6.5, -2.5, 0), V(7.3, -2.5, 0)), False)
sketch11.addGeometry(Part.LineSegment(V(7.3, -2.5, 0), V(7.3, 2.5, 0)), False)
sketch11.addGeometry(Part.LineSegment(V(7.3, 2.5, 0), V(6.5, 2.5, 0)), False)
sketch11.addGeometry(Part.LineSegment(V(-7.3, 2.5, 0), V(-7.3, -2.5, 0)), False)
sketch11.addGeometry(Part.LineSegment(V(-7.3, -2.5, 0), V(-6.5, -2.5, 0)), False)
sketch11.addGeometry(Part.LineSegment(V(-6.5, -2.5, 0), V(-6.5, 2.5, 0)), False)
sketch11.addGeometry(Part.LineSegment(V(-6.5, 2.5, 0), V(-7.3, 2.5, 0)), False)
sketch11.addGeometry(Part.LineSegment(V(-6.3, 3.5, 0), V(-6.3, 2.8, 0)), False)
sketch11.addGeometry(Part.LineSegment(V(-6.3, 2.8, 0), V(6.3, 2.8, 0)), False)
sketch11.addGeometry(Part.LineSegment(V(6.3, 2.8, 0), V(6.3, 3.5, 0)), False)
sketch11.addGeometry(Part.LineSegment(V(6.3, 3.5, 0), V(-6.3, 3.5, 0)), False)
sketch11.addConstraint(Sketcher.Constraint("Coincident", 0, 2, 1, 1))
sketch11.addConstraint(Sketcher.Constraint("Coincident", 1, 2, 2, 1))
sketch11.addConstraint(Sketcher.Constraint("Coincident", 2, 2, 3, 1))
sketch11.addConstraint(Sketcher.Constraint("Coincident", 3, 2, 0, 1))
sketch11.addConstraint(Sketcher.Constraint("Coincident", 4, 2, 5, 1))
sketch11.addConstraint(Sketcher.Constraint("Coincident", 5, 2, 6, 1))
sketch11.addConstraint(Sketcher.Constraint("Coincident", 6, 2, 7, 1))
sketch11.addConstraint(Sketcher.Constraint("Coincident", 7, 2, 4, 1))
sketch11.addConstraint(Sketcher.Constraint("Coincident", 8, 2, 9, 1))
sketch11.addConstraint(Sketcher.Constraint("Coincident", 9, 2, 10, 1))
sketch11.addConstraint(Sketcher.Constraint("Coincident", 10, 2, 11, 1))
sketch11.addConstraint(Sketcher.Constraint("Coincident", 11, 2, 8, 1))
sketch11.addConstraint(Sketcher.Constraint("Coincident", 12, 2, 13, 1))
sketch11.addConstraint(Sketcher.Constraint("Coincident", 13, 2, 14, 1))
sketch11.addConstraint(Sketcher.Constraint("Coincident", 14, 2, 15, 1))
sketch11.addConstraint(Sketcher.Constraint("Coincident", 15, 2, 12, 1))
sketch11.addConstraint(Sketcher.Constraint("Vertical", 0))
sketch11.addConstraint(Sketcher.Constraint("Horizontal", 1))
sketch11.addConstraint(Sketcher.Constraint("Vertical", 2))
sketch11.addConstraint(Sketcher.Constraint("Horizontal", 3))
sketch11.addConstraint(Sketcher.Constraint("Vertical", 4))
sketch11.addConstraint(Sketcher.Constraint("Horizontal", 5))
sketch11.addConstraint(Sketcher.Constraint("Vertical", 6))
sketch11.addConstraint(Sketcher.Constraint("Horizontal", 7))
sketch11.addConstraint(Sketcher.Constraint("Vertical", 8))
sketch11.addConstraint(Sketcher.Constraint("Horizontal", 9))
sketch11.addConstraint(Sketcher.Constraint("Vertical", 10))
sketch11.addConstraint(Sketcher.Constraint("Horizontal", 11))
sketch11.addConstraint(Sketcher.Constraint("Vertical", 12))
sketch11.addConstraint(Sketcher.Constraint("Horizontal", 13))
sketch11.addConstraint(Sketcher.Constraint("Vertical", 14))
sketch11.addConstraint(Sketcher.Constraint("Horizontal", 15))
sketch11.addConstraint(Sketcher.Constraint("Symmetric", 6, 2, 8, 2, -1, 1))
sketch11.addConstraint(Sketcher.Constraint("Symmetric", 4, 2, 10, 2, -1, 1))
sketch11.addConstraint(Sketcher.Constraint("Symmetric", 2, 2, 12, 2, -1, 1))
sketch11.addConstraint(Sketcher.Constraint("Symmetric", 0, 2, 14, 2, -1, 1))
sketch11.addConstraint(Sketcher.Constraint("Horizontal", 5, 2, 8, 2))
sketch11.addConstraint(Sketcher.Constraint("Vertical", 3, 2, 12, 2))
sketch11.addConstraint(Sketcher.Constraint("Equal", 11, 0))
sketch11.addConstraint(Sketcher.Constraint("DistanceX", 1, 1, 1, 2, Q("12.6 mm")))
sketch11.addConstraint(Sketcher.Constraint("DistanceX", 5, 1, 5, 2, Q("0.8 mm")))
sketch11.addConstraint(Sketcher.Constraint("DistanceY", 4, 2, 4, 1, Q("5.1 mm")))
sketch11.addConstraint(Sketcher.Constraint("DistanceY", 1, 2, 4, 2, Q("1 mm")))
sketch11.addConstraint(Sketcher.Constraint("DistanceX", 2, 2, 5, 2, Q("1 mm")))
pad5 = body.newObject("PartDesign::Pad", "Pad004")
pad5.Profile = sketch11
pad5.Length = 0.2
pad5.Reversed = True

doc.recompute()
